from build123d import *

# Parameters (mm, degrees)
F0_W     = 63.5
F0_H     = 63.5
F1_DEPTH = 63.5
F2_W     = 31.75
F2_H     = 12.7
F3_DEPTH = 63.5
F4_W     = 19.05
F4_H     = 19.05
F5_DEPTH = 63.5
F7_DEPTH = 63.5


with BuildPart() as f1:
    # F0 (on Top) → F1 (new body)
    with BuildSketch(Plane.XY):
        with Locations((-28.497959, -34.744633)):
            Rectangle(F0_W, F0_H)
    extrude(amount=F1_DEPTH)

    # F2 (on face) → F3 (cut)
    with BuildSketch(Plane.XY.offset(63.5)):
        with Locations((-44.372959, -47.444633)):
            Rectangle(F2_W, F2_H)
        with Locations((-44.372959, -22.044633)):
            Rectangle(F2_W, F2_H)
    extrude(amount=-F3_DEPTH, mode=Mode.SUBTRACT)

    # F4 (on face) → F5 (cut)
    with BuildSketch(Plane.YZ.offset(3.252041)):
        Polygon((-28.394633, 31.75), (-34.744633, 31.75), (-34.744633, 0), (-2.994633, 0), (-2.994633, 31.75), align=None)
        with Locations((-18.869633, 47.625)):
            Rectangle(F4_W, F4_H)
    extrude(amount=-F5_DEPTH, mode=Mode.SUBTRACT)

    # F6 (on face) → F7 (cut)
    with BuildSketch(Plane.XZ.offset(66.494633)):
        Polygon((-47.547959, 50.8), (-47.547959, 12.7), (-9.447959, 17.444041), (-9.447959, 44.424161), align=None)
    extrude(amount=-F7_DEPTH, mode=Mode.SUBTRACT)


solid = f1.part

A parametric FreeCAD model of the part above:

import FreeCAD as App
import Part
import Sketcher
Q = App.Units.Quantity


def add_polygon(sketch, points):
    """Adds a closed chain of lines whose ends are joined by coincident constraints."""
    first, n = sketch.GeometryCount, len(points)
    for a, b in zip(points, points[1:] + points[:1]):
        sketch.addGeometry(Part.LineSegment(App.Vector(*a, 0), App.Vector(*b, 0)), False)
    for i in range(n):
        sketch.addConstraint(Sketcher.Constraint("Coincident", first + i, 2, first + (i + 1) % n, 1))

doc = App.newDocument("Part")
body = doc.addObject("PartDesign::Body", "Body")

sketch1 = body.newObject("Sketcher::SketchObject", "Sketch")
sketch1.AttachmentSupport = (doc.getObject("XY_Plane"), [""])
sketch1.MapMode = "FlatFace"
add_polygon(sketch1, [(-60, -3), (-60, -66), (3, -66), (3, -3)])
sketch1.addConstraint([
    Sketcher.Constraint("Vertical", 0),
    Sketcher.Constraint("Horizontal", 1),
    Sketcher.Constraint("Vertical", 2),
    Sketcher.Constraint("Horizontal", 3),
    Sketcher.Constraint("Equal", 3, 0),
    Sketcher.Constraint("DistanceX", 1, 1, 1, 2, Q("2.5 in")),
    Sketcher.Constraint("DistanceX", 0, 2, -1, 1, Q("60.247959 mm")),
    Sketcher.Constraint("DistanceY", 0, 2, -1, 1, Q("66.494633 mm")),
])
pad1 = body.newObject("PartDesign::Pad", "Pad")
pad1.Profile = sketch1
pad1.Length = Q("2.5 in")

sketch2 = body.newObject("Sketcher::SketchObject", "Sketch001")
sketch2.AttachmentSupport = (doc.getObject("XY_Plane"), [""])
sketch2.MapMode = "FlatFace"
sketch2.AttachmentOffset = App.Placement(App.Vector(0, 0, 2.5 * 25.4), App.Rotation())
add_polygon(sketch2, [(-60, -41), (-60, -54), (-28, -54), (-28, -41)])
add_polygon(sketch2, [(-60, -16), (-60, -28), (-28, -28), (-28, -16)])
sketch2.addConstraint([
    Sketcher.Constraint("Vertical", 0),
    Sketcher.Constraint("Horizontal", 1),
    Sketcher.Constraint("Vertical", 2),
    Sketcher.Constraint("Horizontal", 3),
    Sketcher.Constraint("Vertical", 4),
    Sketcher.Constraint("Horizontal", 5),
    Sketcher.Constraint("Vertical", 6),
    Sketcher.Constraint("Horizontal", 7),
    Sketcher.Constraint("Vertical", 3, 2, 4, 2),
    Sketcher.Constraint("Vertical", 2, 2, 5, 2),
    Sketcher.Constraint("Equal", 2, 4),
    Sketcher.Constraint("DistanceY", 0, 2, 0, 1, Q("0.5 in")),
    Sketcher.Constraint("DistanceY", 0, 2, 4, 2, Q("1 in")),
    Sketcher.Constraint("DistanceX", 1, 1, 1, 2, Q("1.25 in")),
    Sketcher.Constraint("DistanceX", 0, 2, -1, 1, Q("60.247959 mm")),
    Sketcher.Constraint("DistanceY", 0, 2, -1, 1, Q("53.794633 mm")),
])
pocket1 = body.newObject("PartDesign::Pocket", "Pocket")
pocket1.Profile = sketch2
pocket1.Length = Q("2.5 in")

sketch3 = body.newObject("Sketcher::SketchObject", "Sketch002")
sketch3.AttachmentSupport = (doc.getObject("YZ_Plane"), [""])
sketch3.MapMode = "FlatFace"
sketch3.AttachmentOffset = App.Placement(App.Vector(0, 0, 3.252041), App.Rotation())
add_polygon(sketch3, [(-35, 32), (-35, 0), (-3, 0), (-3, 32)])
add_polygon(sketch3, [(-28, 57), (-28, 38), (-9, 38), (-9, 57)])
sketch3.addConstraint([
    Sketcher.Constraint("Vertical", 0),
    Sketcher.Constraint("Horizontal", 1),
    Sketcher.Constraint("Vertical", 2),
    Sketcher.Constraint("Horizontal", 3),
    Sketcher.Constraint("Vertical", 4),
    Sketcher.Constraint("Horizontal", 5),
    Sketcher.Constraint("Vertical", 6),
    Sketcher.Constraint("Horizontal", 7),
    Sketcher.Constraint("PointOnObject", 0, 2, -1),
    Sketcher.Constraint("Equal", 3, 0),
    Sketcher.Constraint("Equal", 7, 4),
    Sketcher.Constraint("DistanceX", 4, 2, 2, 2, Q("1 in")),
    Sketcher.Constraint("DistanceX", 3, 2, 5, 2, Q("1 in")),
    Sketcher.Constraint("DistanceY", 2, 2, 6, 2, Q("1 in")),
    Sketcher.Constraint("DistanceX", 1, 1, 1, 2, Q("1.25 in")),
    Sketcher.Constraint("DistanceX", 0, 2, -1, 1, Q("34.744633 mm")),
])
pocket2 = body.newObject("PartDesign::Pocket", "Pocket001")
pocket2.Profile = sketch3
pocket2.Length = Q("2.5 in")

sketch4 = body.newObject("Sketcher::SketchObject", "Sketch003")
sketch4.AttachmentSupport = (doc.getObject("XZ_Plane"), [""])
sketch4.MapMode = "FlatFace"
sketch4.AttachmentOffset = App.Placement(App.Vector(0, 0, 66.494633), App.Rotation())
add_polygon(sketch4, [(-48, 51), (-48, 13), (-9, 17), (-9, 44)])
sketch4.addConstraint([
    Sketcher.Constraint("Vertical", 0),
    Sketcher.Constraint("Vertical", 2),
    Sketcher.Constraint("DistanceY", 0, 2, 0, 1, Q("1.5 in")),
    Sketcher.Constraint("DistanceY", -1, 1, 3, 2, Q("2 in")),
    Sketcher.Constraint("DistanceX", 0, 2, 1, 2, Q("1.5 in")),
    Sketcher.Constraint("Distance", 3, Q("38.629798 mm")),
    Sketcher.Constraint("DistanceY", 2, 1, 2, 2, Q("26.98012 mm")),
    Sketcher.Constraint("DistanceX", 0, 2, -1, 1, Q("47.547959 mm")),
])
pocket3 = body.newObject("PartDesign::Pocket", "Pocket002")
pocket3.Profile = sketch4
pocket3.Length = Q("2.5 in")

doc.recompute()
